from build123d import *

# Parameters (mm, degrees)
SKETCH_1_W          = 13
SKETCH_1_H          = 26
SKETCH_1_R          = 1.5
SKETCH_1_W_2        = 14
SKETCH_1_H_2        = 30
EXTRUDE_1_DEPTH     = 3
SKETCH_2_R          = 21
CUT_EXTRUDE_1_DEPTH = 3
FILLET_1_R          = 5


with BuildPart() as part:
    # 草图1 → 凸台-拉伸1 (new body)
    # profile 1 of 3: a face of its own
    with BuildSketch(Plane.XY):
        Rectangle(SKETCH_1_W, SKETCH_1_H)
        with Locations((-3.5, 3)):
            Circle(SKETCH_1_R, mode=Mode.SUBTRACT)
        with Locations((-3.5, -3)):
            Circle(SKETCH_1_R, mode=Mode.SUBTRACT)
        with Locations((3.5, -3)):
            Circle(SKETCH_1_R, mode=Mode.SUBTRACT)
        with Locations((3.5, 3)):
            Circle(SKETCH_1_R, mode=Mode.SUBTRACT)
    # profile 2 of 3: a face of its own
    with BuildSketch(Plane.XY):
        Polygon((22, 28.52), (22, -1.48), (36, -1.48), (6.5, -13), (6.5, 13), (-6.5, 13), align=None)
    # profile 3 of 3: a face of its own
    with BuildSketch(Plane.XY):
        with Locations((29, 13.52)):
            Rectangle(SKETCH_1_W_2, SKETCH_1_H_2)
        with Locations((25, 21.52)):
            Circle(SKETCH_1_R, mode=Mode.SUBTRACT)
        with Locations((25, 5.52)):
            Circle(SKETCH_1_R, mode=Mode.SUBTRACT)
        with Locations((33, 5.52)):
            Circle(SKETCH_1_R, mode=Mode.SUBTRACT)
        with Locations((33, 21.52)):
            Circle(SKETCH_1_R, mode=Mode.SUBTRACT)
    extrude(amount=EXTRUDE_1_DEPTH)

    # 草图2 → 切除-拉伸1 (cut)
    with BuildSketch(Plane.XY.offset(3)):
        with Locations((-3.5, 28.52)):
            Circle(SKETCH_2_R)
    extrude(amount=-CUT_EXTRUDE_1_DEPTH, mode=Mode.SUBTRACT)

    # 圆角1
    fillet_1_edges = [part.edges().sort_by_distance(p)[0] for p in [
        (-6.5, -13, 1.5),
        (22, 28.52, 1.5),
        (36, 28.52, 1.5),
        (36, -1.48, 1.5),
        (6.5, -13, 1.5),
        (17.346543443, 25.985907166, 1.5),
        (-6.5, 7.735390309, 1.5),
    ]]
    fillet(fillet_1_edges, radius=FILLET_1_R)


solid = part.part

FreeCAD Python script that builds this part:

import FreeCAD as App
import Part
import Sketcher

V = App.Vector
Q = App.Units.Quantity


def edges_at(feature, points):
    """Names of the edges that pass closest to the given points."""
    edges = feature.Shape.Edges
    near = lambda p: min(range(len(edges)), key=lambda i: edges[i].distToShape(Part.Vertex(*p))[0])
    return sorted({f"Edge{near(p) + 1}" for p in points})


def add_polygon(sketch, points):
    """Adds a closed chain of lines whose ends are joined by coincident constraints."""
    first, n = sketch.GeometryCount, len(points)
    for a, b in zip(points, points[1:] + points[:1]):
        sketch.addGeometry(Part.LineSegment(App.Vector(*a, 0), App.Vector(*b, 0)), False)
    for i in range(n):
        sketch.addConstraint(Sketcher.Constraint("Coincident", first + i, 2, first + (i + 1) % n, 1))

doc = App.newDocument("Part")
params = doc.addObject("Spreadsheet::Sheet", "Params")
for row, (alias, value) in enumerate([
    ("sketch1_diameter", "3 mm"),
    ("sketch1_width", "13 mm"),
    ("sketch1_width2", "14 mm"),
    ("sketch1_height", "26 mm"),
    ("sketch1_height2", "30 mm"),
    ("pad1_length", "3 mm"),
    ("sketch2_diameter", "42 mm"),
    ("pocket1_length", "3 mm"),
    ("fillet_radius", "5 mm"),
], start=1):
    params.set(f"A{row}", alias)
    params.set(f"B{row}", "=" + value)
    params.setAlias(f"B{row}", alias)

body = doc.addObject("PartDesign::Body", "Body")

# Sketch on XY plane
sketch1 = doc.addObject("Sketcher::SketchObject", "Sketch")
body.addObject(sketch1)
sketch1.AttachmentSupport = (doc.XY_Plane, [""])
sketch1.MapMode = "FlatFace"
add_polygon(sketch1, [(-6.5, 13), (-6.5, -13), (6.5, -13), (36, -1.5), (36, 28.5), (22, 28.5)])  # lines 0-5
sketch1.addGeometry(Part.Circle(V(-3.5, -3, 0), V(0, 0, 1), 1.5), False)  # 6
sketch1.addGeometry(Part.Circle(V(3.5, -3, 0), V(0, 0, 1), 1.5), False)  # 7
sketch1.addGeometry(Part.Circle(V(-3.5, 3, 0), V(0, 0, 1), 1.5), False)  # 8
sketch1.addGeometry(Part.Circle(V(3.5, 3, 0), V(0, 0, 1), 1.5), False)  # 9
sketch1.addGeometry(Part.Circle(V(33, 21.5, 0), V(0, 0, 1), 1.5), False)  # 10
sketch1.addGeometry(Part.Circle(V(25, 21.5, 0), V(0, 0, 1), 1.5), False)  # 11
sketch1.addGeometry(Part.Circle(V(25, 5.5, 0), V(0, 0, 1), 1.5), False)  # 12
sketch1.addGeometry(Part.Circle(V(33, 5.5, 0), V(0, 0, 1), 1.5), False)  # 13
sketch1.addConstraint(Sketcher.Constraint("Vertical", 0))
sketch1.addConstraint(Sketcher.Constraint("Horizontal", 1))
sketch1.addConstraint(Sketcher.Constraint("Vertical", 3))
sketch1.addConstraint(Sketcher.Constraint("Horizontal", 4))
sketch1.addConstraint(Sketcher.Constraint("Equal", 6, 7))
sketch1.addConstraint(Sketcher.Constraint("Equal", 7, 8))
sketch1.addConstraint(Sketcher.Constraint("Equal", 8, 9))
sketch1.addConstraint(Sketcher.Constraint("Equal", 9, 10))
sketch1.addConstraint(Sketcher.Constraint("Equal", 10, 11))
sketch1.addConstraint(Sketcher.Constraint("Equal", 11, 12))
sketch1.addConstraint(Sketcher.Constraint("Equal", 12, 13))
sketch1.addConstraint(Sketcher.Constraint("Symmetric", 7, 3, 8, 3, -1, 1))
sketch1.addConstraint(Sketcher.Constraint("Symmetric", 6, 3, 9, 3, -1, 1))
sketch1.addConstraint(Sketcher.Constraint("Symmetric", 1, 2, 5, 2, -1, 1))
sketch1.addConstraint(Sketcher.Constraint("Symmetric", 6, 3, 7, 3, -2))
sketch1.addConstraint(Sketcher.Constraint("Horizontal", 10, 3, 11, 3))
sketch1.addConstraint(Sketcher.Constraint("Horizontal", 12, 3, 13, 3))
sketch1.addConstraint(Sketcher.Constraint("Vertical", 11, 3, 12, 3))
sketch1.addConstraint(Sketcher.Constraint("Vertical", 10, 3, 13, 3))
sketch1.addConstraint(Sketcher.Constraint("Diameter", 6, Q("3 mm")))
sketch1.addConstraint(Sketcher.Constraint("DistanceX", 1, 1, 1, 2, Q("13 mm")))
sketch1.addConstraint(Sketcher.Constraint("DistanceX", 4, 2, 4, 1, Q("14 mm")))
sketch1.addConstraint(Sketcher.Constraint("DistanceY", 0, 2, 0, 1, Q("26 mm")))
sketch1.addConstraint(Sketcher.Constraint("DistanceY", 3, 1, 3, 2, Q("30 mm")))
sketch1.addConstraint(Sketcher.Constraint("DistanceY", 6, 3, -1, 1, Q("3 mm")))
sketch1.addConstraint(Sketcher.Constraint("DistanceX", -1, 1, 10, 3, Q("33 mm")))
sketch1.addConstraint(Sketcher.Constraint("DistanceX", -1, 1, 11, 3, Q("25 mm")))
sketch1.addConstraint(Sketcher.Constraint("DistanceX", -1, 1, 2, 2, Q("36 mm")))
sketch1.addConstraint(Sketcher.Constraint("DistanceX", 6, 3, 7, 3, Q("7 mm")))
sketch1.addConstraint(Sketcher.Constraint("DistanceY", 12, 3, 11, 3, Q("16 mm")))
sketch1.addConstraint(Sketcher.Constraint("DistanceY", 2, 2, 13, 3, Q("7 mm")))
sketch1.addConstraint(Sketcher.Constraint("DistanceY", -1, 1, 10, 3, Q("21.52 mm")))
sketch1.setExpression("Constraints[25]", "Params.sketch1_diameter")
sketch1.setExpression("Constraints[26]", "Params.sketch1_width")
sketch1.setExpression("Constraints[27]", "Params.sketch1_width2")
sketch1.setExpression("Constraints[28]", "Params.sketch1_height")
sketch1.setExpression("Constraints[29]", "Params.sketch1_height2")
pad1 = doc.addObject("PartDesign::Pad", "Pad")
body.addObject(pad1)
pad1.Profile = sketch1
pad1.setExpression("Length", "Params.pad1_length")

# Sketch on XY plane
sketch2 = doc.addObject("Sketcher::SketchObject", "Sketch001")
body.addObject(sketch2)
sketch2.AttachmentSupport = (doc.XY_Plane, [""])
sketch2.MapMode = "FlatFace"
sketch2.AttachmentOffset = App.Placement(V(0, 0, 3), App.Rotation())
sketch2.addGeometry(Part.Circle(V(-4, 29, 0), V(0, 0, 1), 21), False)
sketch2.addConstraint(Sketcher.Constraint("Diameter", 0, Q("42 mm")))
sketch2.addConstraint(Sketcher.Constraint("DistanceX", 0, 3, -1, 1, Q("3.5 mm")))
sketch2.addConstraint(Sketcher.Constraint("DistanceY", -1, 1, 0, 3, Q("28.52 mm")))
sketch2.setExpression("Constraints[0]", "Params.sketch2_diameter")
pocket1 = doc.addObject("PartDesign::Pocket", "Pocket")
body.addObject(pocket1)
pocket1.Profile = sketch2
pocket1.setExpression("Length", "Params.pocket1_length")
doc.recompute()

fillet = doc.addObject("PartDesign::Fillet", "Fillet")
body.addObject(fillet)
fillet.Base = (pocket1, edges_at(pocket1, [
    (-6.5, -13, 1.5),
    (22, 28.52, 1.5),
    (36, 28.52, 1.5),
    (36, -1.48, 1.5),
    (6.5, -13, 1.5),
    (17.347, 25.986, 1.5),
    (-6.5, 7.735, 1.5),
]))
fillet.setExpression("Radius", "Params.fillet_radius")

doc.recompute()
